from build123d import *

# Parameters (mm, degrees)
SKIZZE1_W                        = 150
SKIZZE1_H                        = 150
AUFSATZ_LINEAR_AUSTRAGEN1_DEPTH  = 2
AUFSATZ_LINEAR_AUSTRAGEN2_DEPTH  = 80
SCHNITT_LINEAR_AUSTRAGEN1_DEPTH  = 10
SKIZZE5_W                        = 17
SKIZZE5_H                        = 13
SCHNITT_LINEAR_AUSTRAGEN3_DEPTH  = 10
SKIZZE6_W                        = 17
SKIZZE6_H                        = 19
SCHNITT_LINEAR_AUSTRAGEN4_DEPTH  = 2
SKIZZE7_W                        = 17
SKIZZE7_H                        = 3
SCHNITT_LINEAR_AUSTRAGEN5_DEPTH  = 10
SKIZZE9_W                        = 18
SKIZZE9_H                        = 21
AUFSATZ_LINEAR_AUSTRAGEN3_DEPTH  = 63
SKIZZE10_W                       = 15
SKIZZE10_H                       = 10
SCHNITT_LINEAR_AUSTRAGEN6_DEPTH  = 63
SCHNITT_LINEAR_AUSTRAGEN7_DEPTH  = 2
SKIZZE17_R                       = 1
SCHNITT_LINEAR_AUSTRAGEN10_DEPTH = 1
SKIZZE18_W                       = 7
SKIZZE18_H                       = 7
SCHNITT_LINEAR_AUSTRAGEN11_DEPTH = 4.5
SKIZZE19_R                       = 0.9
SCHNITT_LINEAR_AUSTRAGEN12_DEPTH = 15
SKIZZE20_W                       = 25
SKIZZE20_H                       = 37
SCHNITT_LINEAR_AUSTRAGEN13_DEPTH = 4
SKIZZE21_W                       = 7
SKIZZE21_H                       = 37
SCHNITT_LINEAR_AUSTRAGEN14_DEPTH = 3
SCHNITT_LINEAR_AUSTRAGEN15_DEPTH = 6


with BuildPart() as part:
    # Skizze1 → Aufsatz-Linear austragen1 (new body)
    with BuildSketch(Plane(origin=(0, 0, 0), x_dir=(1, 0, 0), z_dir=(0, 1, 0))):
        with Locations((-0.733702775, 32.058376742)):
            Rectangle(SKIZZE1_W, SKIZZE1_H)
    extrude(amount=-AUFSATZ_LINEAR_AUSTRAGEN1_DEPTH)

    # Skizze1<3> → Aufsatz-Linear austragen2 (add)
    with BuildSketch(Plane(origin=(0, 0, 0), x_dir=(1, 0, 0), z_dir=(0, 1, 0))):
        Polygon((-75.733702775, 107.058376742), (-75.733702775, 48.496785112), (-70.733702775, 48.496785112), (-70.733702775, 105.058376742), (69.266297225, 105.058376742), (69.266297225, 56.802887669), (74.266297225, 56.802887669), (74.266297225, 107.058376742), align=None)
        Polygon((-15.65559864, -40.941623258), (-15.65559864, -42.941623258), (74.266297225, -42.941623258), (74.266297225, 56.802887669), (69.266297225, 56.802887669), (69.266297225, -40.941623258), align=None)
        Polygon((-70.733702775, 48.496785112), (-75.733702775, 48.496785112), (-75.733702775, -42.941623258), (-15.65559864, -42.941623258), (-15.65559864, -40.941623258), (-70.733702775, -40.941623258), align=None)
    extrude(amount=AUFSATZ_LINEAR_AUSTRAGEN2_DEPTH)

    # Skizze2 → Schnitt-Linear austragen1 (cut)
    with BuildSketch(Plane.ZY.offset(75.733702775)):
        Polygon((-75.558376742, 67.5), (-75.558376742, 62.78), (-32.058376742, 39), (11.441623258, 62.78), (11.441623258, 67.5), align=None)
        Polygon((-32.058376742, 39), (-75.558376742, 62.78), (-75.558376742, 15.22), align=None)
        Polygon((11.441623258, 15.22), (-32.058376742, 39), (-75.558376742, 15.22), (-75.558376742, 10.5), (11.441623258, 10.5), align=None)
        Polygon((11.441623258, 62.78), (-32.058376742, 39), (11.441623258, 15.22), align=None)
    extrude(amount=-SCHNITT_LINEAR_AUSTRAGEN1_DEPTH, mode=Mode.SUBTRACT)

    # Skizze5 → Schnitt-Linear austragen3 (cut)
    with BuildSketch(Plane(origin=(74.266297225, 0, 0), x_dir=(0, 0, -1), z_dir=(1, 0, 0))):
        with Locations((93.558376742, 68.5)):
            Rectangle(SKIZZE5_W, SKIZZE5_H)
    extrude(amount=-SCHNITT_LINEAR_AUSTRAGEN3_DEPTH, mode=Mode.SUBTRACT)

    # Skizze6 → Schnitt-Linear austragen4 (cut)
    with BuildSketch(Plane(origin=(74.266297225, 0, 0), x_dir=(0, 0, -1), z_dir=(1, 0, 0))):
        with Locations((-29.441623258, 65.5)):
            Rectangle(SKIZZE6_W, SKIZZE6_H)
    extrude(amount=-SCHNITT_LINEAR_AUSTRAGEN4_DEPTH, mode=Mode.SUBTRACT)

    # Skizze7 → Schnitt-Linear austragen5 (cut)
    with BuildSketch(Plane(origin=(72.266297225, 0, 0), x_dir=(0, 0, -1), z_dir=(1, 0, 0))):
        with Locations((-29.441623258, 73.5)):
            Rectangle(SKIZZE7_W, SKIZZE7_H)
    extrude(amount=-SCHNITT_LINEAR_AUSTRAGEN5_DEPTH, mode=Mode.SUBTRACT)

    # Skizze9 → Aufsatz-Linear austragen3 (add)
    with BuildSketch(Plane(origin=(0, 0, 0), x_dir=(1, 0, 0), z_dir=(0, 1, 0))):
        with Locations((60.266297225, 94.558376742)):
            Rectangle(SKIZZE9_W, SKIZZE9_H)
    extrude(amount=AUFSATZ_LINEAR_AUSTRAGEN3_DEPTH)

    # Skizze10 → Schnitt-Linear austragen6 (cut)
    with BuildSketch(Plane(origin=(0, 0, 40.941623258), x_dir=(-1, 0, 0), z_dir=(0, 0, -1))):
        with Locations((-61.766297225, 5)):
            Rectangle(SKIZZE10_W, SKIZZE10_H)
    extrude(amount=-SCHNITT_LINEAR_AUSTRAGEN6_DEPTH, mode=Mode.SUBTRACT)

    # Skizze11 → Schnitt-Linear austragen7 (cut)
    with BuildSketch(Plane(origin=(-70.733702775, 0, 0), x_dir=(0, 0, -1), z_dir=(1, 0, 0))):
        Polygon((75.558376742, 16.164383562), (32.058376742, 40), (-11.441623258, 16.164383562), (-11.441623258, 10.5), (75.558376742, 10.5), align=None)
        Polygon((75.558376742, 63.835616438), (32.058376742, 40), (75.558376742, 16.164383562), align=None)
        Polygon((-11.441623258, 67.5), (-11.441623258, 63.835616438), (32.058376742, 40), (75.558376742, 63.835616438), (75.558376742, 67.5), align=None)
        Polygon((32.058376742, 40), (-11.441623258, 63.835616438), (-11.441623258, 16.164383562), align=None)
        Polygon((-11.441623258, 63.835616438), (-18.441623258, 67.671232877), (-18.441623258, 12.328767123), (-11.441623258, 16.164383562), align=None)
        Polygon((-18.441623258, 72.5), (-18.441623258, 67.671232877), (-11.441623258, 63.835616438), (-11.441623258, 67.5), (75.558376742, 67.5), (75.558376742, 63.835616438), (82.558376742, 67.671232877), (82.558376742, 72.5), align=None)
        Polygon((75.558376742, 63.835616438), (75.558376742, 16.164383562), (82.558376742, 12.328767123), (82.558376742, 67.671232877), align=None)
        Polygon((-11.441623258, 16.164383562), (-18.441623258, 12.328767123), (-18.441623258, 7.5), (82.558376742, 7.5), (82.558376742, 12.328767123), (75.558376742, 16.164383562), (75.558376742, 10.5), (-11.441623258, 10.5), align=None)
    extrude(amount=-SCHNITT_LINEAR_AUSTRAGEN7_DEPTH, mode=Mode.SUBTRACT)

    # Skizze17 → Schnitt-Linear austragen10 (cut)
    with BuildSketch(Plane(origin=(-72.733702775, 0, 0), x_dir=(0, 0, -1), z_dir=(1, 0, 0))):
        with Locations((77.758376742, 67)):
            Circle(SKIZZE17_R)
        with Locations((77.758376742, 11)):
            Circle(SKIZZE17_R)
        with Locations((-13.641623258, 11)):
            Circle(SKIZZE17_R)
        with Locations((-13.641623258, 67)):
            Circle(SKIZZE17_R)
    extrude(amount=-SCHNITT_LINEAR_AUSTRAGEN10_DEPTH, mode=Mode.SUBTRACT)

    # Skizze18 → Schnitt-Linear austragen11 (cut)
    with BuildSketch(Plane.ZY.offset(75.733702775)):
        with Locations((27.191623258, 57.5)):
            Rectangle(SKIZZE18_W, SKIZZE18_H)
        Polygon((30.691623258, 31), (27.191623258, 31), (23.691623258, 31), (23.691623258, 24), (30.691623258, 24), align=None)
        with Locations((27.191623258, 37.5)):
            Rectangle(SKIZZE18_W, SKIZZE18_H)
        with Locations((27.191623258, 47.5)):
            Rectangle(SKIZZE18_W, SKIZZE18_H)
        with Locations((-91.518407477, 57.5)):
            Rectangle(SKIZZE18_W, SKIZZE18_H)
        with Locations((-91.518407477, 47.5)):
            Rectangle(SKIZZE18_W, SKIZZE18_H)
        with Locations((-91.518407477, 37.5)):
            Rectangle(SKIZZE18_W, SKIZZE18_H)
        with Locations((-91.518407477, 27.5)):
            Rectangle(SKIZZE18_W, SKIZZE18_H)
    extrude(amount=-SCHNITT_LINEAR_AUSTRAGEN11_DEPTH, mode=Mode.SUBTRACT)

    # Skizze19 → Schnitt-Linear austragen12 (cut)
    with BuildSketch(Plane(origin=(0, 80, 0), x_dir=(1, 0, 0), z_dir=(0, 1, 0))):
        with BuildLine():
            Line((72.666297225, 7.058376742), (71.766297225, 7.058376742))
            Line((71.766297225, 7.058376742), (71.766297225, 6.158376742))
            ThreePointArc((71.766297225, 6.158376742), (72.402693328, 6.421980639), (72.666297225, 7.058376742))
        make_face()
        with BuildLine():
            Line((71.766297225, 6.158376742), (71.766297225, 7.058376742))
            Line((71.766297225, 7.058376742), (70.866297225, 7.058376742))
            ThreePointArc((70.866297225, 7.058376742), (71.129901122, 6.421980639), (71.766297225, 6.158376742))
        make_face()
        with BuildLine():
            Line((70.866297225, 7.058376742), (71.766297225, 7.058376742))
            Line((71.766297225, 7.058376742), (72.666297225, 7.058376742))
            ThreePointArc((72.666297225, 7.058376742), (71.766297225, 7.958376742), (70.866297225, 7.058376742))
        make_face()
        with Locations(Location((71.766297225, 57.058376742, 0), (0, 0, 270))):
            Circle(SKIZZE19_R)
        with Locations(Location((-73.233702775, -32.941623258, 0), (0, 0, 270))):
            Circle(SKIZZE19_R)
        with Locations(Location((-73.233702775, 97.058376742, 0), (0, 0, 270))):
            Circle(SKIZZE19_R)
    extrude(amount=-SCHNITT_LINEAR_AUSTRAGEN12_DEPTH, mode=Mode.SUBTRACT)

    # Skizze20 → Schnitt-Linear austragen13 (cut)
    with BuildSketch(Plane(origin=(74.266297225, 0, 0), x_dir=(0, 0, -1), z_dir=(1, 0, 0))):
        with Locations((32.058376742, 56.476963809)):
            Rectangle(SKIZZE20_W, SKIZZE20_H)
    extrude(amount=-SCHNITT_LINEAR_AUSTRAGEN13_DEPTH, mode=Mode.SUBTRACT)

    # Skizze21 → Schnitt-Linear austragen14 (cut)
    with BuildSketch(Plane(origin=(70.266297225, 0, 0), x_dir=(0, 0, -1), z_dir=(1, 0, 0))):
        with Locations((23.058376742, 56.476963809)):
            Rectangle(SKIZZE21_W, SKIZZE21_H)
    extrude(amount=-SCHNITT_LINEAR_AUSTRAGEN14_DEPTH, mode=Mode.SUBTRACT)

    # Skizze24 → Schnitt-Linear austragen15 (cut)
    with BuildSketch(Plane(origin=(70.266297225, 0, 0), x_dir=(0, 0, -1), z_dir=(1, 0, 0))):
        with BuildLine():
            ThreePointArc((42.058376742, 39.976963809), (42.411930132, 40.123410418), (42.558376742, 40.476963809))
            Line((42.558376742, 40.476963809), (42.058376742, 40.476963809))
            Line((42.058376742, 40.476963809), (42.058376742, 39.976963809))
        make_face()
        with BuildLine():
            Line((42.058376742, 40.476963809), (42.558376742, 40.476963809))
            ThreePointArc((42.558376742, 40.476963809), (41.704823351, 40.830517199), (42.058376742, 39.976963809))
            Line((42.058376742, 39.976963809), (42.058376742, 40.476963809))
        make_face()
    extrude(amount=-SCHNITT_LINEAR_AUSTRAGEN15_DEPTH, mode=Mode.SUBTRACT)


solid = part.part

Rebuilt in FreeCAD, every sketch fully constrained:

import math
import FreeCAD as App
import Part
import Sketcher

doc = App.newDocument("Part")
body = doc.addObject("PartDesign::Body", "Body")

sketch1 = body.newObject("Sketcher::SketchObject", "Sketch")
sketch1.AttachmentSupport = (doc.getObject("XZ_Plane"), [""])
sketch1.MapMode = "FlatFace"
sketch1.addGeometry([
    Part.LineSegment(App.Vector(-75.733703, -107.058377, 0), App.Vector(-75.733703, 42.941623, 0)),
    Part.LineSegment(App.Vector(-75.733703, 42.941623, 0), App.Vector(74.266297, 42.941623, 0)),
    Part.LineSegment(App.Vector(74.266297, 42.941623, 0), App.Vector(74.266297, -107.058377, 0)),
    Part.LineSegment(App.Vector(74.266297, -107.058377, 0), App.Vector(-75.733703, -107.058377, 0)),
], False)
sketch1.addConstraint([
    Sketcher.Constraint("Coincident", 0, 2, 1, 1),
    Sketcher.Constraint("Coincident", 1, 2, 2, 1),
    Sketcher.Constraint("Coincident", 2, 2, 3, 1),
    Sketcher.Constraint("Coincident", 3, 2, 0, 1),
    Sketcher.Constraint("Vertical", 0),
    Sketcher.Constraint("Horizontal", 1),
    Sketcher.Constraint("Vertical", 2),
    Sketcher.Constraint("Horizontal", 3),
    Sketcher.Constraint("Equal", 3, 0),
    Sketcher.Constraint("DistanceX", 1, 1, 1, 2, 150.0),
    Sketcher.Constraint("DistanceX", 0, 2, -1, 1, 75.733703),
    Sketcher.Constraint("DistanceY", -1, 1, 0, 2, 42.941623),
])
pad1 = body.newObject("PartDesign::Pad", "Pad")
pad1.Profile = sketch1
pad1.Length = 2

sketch2 = body.newObject("Sketcher::SketchObject", "Sketch001")
sketch2.AttachmentSupport = (doc.getObject("XZ_Plane"), [""])
sketch2.MapMode = "FlatFace"
sketch2.addGeometry([
    Part.LineSegment(App.Vector(-75.733703, -107.058377, 0), App.Vector(-75.733703, 42.941623, 0)),
    Part.LineSegment(App.Vector(-75.733703, 42.941623, 0), App.Vector(74.266297, 42.941623, 0)),
    Part.LineSegment(App.Vector(74.266297, 42.941623, 0), App.Vector(74.266297, -107.058377, 0)),
    Part.LineSegment(App.Vector(74.266297, -107.058377, 0), App.Vector(-75.733703, -107.058377, 0)),
    Part.LineSegment(App.Vector(-70.733703, -105.058377, 0), App.Vector(69.266297, -105.058377, 0)),
    Part.LineSegment(App.Vector(69.266297, -105.058377, 0), App.Vector(69.266297, 40.941623, 0)),
    Part.LineSegment(App.Vector(69.266297, 40.941623, 0), App.Vector(-70.733703, 40.941623, 0)),
    Part.LineSegment(App.Vector(-70.733703, 40.941623, 0), App.Vector(-70.733703, -105.058377, 0)),
], False)
sketch2.addConstraint([
    Sketcher.Constraint("Coincident", 0, 2, 1, 1),
    Sketcher.Constraint("Coincident", 1, 2, 2, 1),
    Sketcher.Constraint("Coincident", 2, 2, 3, 1),
    Sketcher.Constraint("Coincident", 3, 2, 0, 1),
    Sketcher.Constraint("Coincident", 4, 2, 5, 1),
    Sketcher.Constraint("Coincident", 5, 2, 6, 1),
    Sketcher.Constraint("Coincident", 6, 2, 7, 1),
    Sketcher.Constraint("Coincident", 7, 2, 4, 1),
    Sketcher.Constraint("Vertical", 0),
    Sketcher.Constraint("Horizontal", 1),
    Sketcher.Constraint("Vertical", 2),
    Sketcher.Constraint("Horizontal", 3),
    Sketcher.Constraint("Horizontal", 4),
    Sketcher.Constraint("Vertical", 5),
    Sketcher.Constraint("Horizontal", 6),
    Sketcher.Constraint("Vertical", 7),
    Sketcher.Constraint("Equal", 3, 0),
    Sketcher.Constraint("DistanceX", 1, 1, 1, 2, 150.0),
    Sketcher.Constraint("DistanceX", 4, 1, 4, 2, 140.0),
    Sketcher.Constraint("DistanceY", 5, 1, 5, 2, 146.0),
    Sketcher.Constraint("DistanceX", 4, 2, 2, 2, 5.0),
    Sketcher.Constraint("DistanceY", 2, 2, 4, 2, 2.0),
    Sketcher.Constraint("DistanceX", 0, 2, -1, 1, 75.733703),
    Sketcher.Constraint("DistanceY", -1, 1, 0, 2, 42.941623),
])
pad2 = body.newObject("PartDesign::Pad", "Pad001")
pad2.Profile = sketch2
pad2.Length = 80
pad2.Reversed = True

sketch3 = body.newObject("Sketcher::SketchObject", "Sketch002")
sketch3.AttachmentSupport = (doc.getObject("YZ_Plane"), [""])
sketch3.MapMode = "FlatFace"
sketch3.AttachmentOffset = App.Placement(App.Vector(0, 0, -75.733703), App.Rotation())
sketch3.addGeometry([
    Part.LineSegment(App.Vector(67.5, -75.558377, 0), App.Vector(10.5, -75.558377, 0)),
    Part.LineSegment(App.Vector(10.5, -75.558377, 0), App.Vector(10.5, 11.441623, 0)),
    Part.LineSegment(App.Vector(10.5, 11.441623, 0), App.Vector(67.5, 11.441623, 0)),
    Part.LineSegment(App.Vector(67.5, 11.441623, 0), App.Vector(67.5, -75.558377, 0)),
], False)
sketch3.addConstraint([
    Sketcher.Constraint("Coincident", 0, 2, 1, 1),
    Sketcher.Constraint("Coincident", 1, 2, 2, 1),
    Sketcher.Constraint("Coincident", 2, 2, 3, 1),
    Sketcher.Constraint("Coincident", 3, 2, 0, 1),
    Sketcher.Constraint("Horizontal", 0),
    Sketcher.Constraint("Vertical", 1),
    Sketcher.Constraint("Horizontal", 2),
    Sketcher.Constraint("Vertical", 3),
    Sketcher.Constraint("DistanceX", 0, 2, 0, 1, 57.0),
    Sketcher.Constraint("DistanceY", 1, 1, 1, 2, 87.0),
    Sketcher.Constraint("DistanceX", -1, 1, 0, 2, 10.5),
    Sketcher.Constraint("DistanceY", 0, 2, -1, 1, 75.558377),
])
pocket1 = body.newObject("PartDesign::Pocket", "Pocket")
pocket1.Profile = sketch3
pocket1.Length = 10
pocket1.Reversed = True

sketch4 = body.newObject("Sketcher::SketchObject", "Sketch003")
sketch4.AttachmentSupport = (doc.getObject("YZ_Plane"), [""])
sketch4.MapMode = "FlatFace"
sketch4.AttachmentOffset = App.Placement(App.Vector(0, 0, 74.266297), App.Rotation())
sketch4.addGeometry([
    Part.LineSegment(App.Vector(75, -85.058377, 0), App.Vector(62, -85.058377, 0)),
    Part.LineSegment(App.Vector(62, -85.058377, 0), App.Vector(62, -102.058377, 0)),
    Part.LineSegment(App.Vector(62, -102.058377, 0), App.Vector(75, -102.058377, 0)),
    Part.LineSegment(App.Vector(75, -102.058377, 0), App.Vector(75, -85.058377, 0)),
], False)
sketch4.addConstraint([
    Sketcher.Constraint("Coincident", 0, 2, 1, 1),
    Sketcher.Constraint("Coincident", 1, 2, 2, 1),
    Sketcher.Constraint("Coincident", 2, 2, 3, 1),
    Sketcher.Constraint("Coincident", 3, 2, 0, 1),
    Sketcher.Constraint("Horizontal", 0),
    Sketcher.Constraint("Vertical", 1),
    Sketcher.Constraint("Horizontal", 2),
    Sketcher.Constraint("Vertical", 3),
    Sketcher.Constraint("DistanceX", 0, 2, 0, 1, 13.0),
    Sketcher.Constraint("DistanceY", 1, 2, 1, 1, 17.0),
    Sketcher.Constraint("DistanceX", -1, 1, 0, 2, 62.0),
    Sketcher.Constraint("DistanceY", 0, 2, -1, 1, 85.058377),
])
pocket2 = body.newObject("PartDesign::Pocket", "Pocket001")
pocket2.Profile = sketch4
pocket2.Length = 10

sketch5 = body.newObject("Sketcher::SketchObject", "Sketch004")
sketch5.AttachmentSupport = (doc.getObject("YZ_Plane"), [""])
sketch5.MapMode = "FlatFace"
sketch5.AttachmentOffset = App.Placement(App.Vector(0, 0, 74.266297), App.Rotation())
sketch5.addGeometry([
    Part.LineSegment(App.Vector(75, 37.941623, 0), App.Vector(56, 37.941623, 0)),
    Part.LineSegment(App.Vector(56, 37.941623, 0), App.Vector(56, 20.941623, 0)),
    Part.LineSegment(App.Vector(56, 20.941623, 0), App.Vector(75, 20.941623, 0)),
    Part.LineSegment(App.Vector(75, 20.941623, 0), App.Vector(75, 37.941623, 0)),
], False)
sketch5.addConstraint([
    Sketcher.Constraint("Coincident", 0, 2, 1, 1),
    Sketcher.Constraint("Coincident", 1, 2, 2, 1),
    Sketcher.Constraint("Coincident", 2, 2, 3, 1),
    Sketcher.Constraint("Coincident", 3, 2, 0, 1),
    Sketcher.Constraint("Horizontal", 0),
    Sketcher.Constraint("Vertical", 1),
    Sketcher.Constraint("Horizontal", 2),
    Sketcher.Constraint("Vertical", 3),
    Sketcher.Constraint("DistanceX", 0, 2, 0, 1, 19.0),
    Sketcher.Constraint("DistanceY", 1, 2, 1, 1, 17.0),
    Sketcher.Constraint("DistanceX", -1, 1, 0, 2, 56.0),
    Sketcher.Constraint("DistanceY", -1, 1, 0, 2, 37.941623),
])
pocket3 = body.newObject("PartDesign::Pocket", "Pocket002")
pocket3.Profile = sketch5
pocket3.Length = 2

sketch6 = body.newObject("Sketcher::SketchObject", "Sketch005")
sketch6.AttachmentSupport = (doc.getObject("YZ_Plane"), [""])
sketch6.MapMode = "FlatFace"
sketch6.AttachmentOffset = App.Placement(App.Vector(0, 0, 72.266297), App.Rotation())
sketch6.addGeometry([
    Part.LineSegment(App.Vector(75, 37.941623, 0), App.Vector(72, 37.941623, 0)),
    Part.LineSegment(App.Vector(72, 37.941623, 0), App.Vector(72, 20.941623, 0)),
    Part.LineSegment(App.Vector(72, 20.941623, 0), App.Vector(75, 20.941623, 0)),
    Part.LineSegment(App.Vector(75, 20.941623, 0), App.Vector(75, 37.941623, 0)),
], False)
sketch6.addConstraint([
    Sketcher.Constraint("Coincident", 0, 2, 1, 1),
    Sketcher.Constraint("Coincident", 1, 2, 2, 1),
    Sketcher.Constraint("Coincident", 2, 2, 3, 1),
    Sketcher.Constraint("Coincident", 3, 2, 0, 1),
    Sketcher.Constraint("Horizontal", 0),
    Sketcher.Constraint("Vertical", 1),
    Sketcher.Constraint("Horizontal", 2),
    Sketcher.Constraint("Vertical", 3),
    Sketcher.Constraint("DistanceX", 0, 2, 0, 1, 3.0),
    Sketcher.Constraint("DistanceY", 1, 2, 1, 1, 17.0),
    Sketcher.Constraint("DistanceX", -1, 1, 0, 2, 72.0),
    Sketcher.Constraint("DistanceY", -1, 1, 0, 2, 37.941623),
])
pocket4 = body.newObject("PartDesign::Pocket", "Pocket003")
pocket4.Profile = sketch6
pocket4.Length = 10

sketch7 = body.newObject("Sketcher::SketchObject", "Sketch006")
sketch7.AttachmentSupport = (doc.getObject("XZ_Plane"), [""])
sketch7.MapMode = "FlatFace"
sketch7.addGeometry([
    Part.LineSegment(App.Vector(51.266297, -105.058377, 0), App.Vector(51.266297, -84.058377, 0)),
    Part.LineSegment(App.Vector(51.266297, -84.058377, 0), App.Vector(69.266297, -84.058377, 0)),
    Part.LineSegment(App.Vector(69.266297, -84.058377, 0), App.Vector(69.266297, -105.058377, 0)),
    Part.LineSegment(App.Vector(69.266297, -105.058377, 0), App.Vector(51.266297, -105.058377, 0)),
], False)
sketch7.addConstraint([
    Sketcher.Constraint("Coincident", 0, 2, 1, 1),
    Sketcher.Constraint("Coincident", 1, 2, 2, 1),
    Sketcher.Constraint("Coincident", 2, 2, 3, 1),
    Sketcher.Constraint("Coincident", 3, 2, 0, 1),
    Sketcher.Constraint("Vertical", 0),
    Sketcher.Constraint("Horizontal", 1),
    Sketcher.Constraint("Vertical", 2),
    Sketcher.Constraint("Horizontal", 3),
    Sketcher.Constraint("DistanceX", 1, 1, 1, 2, 18.0),
    Sketcher.Constraint("DistanceY", 0, 1, 0, 2, 21.0),
    Sketcher.Constraint("DistanceX", -1, 1, 0, 2, 51.266297),
    Sketcher.Constraint("DistanceY", 0, 2, -1, 1, 84.058377),
])
pad3 = body.newObject("PartDesign::Pad", "Pad002")
pad3.Profile = sketch7
pad3.Length = 63
pad3.Reversed = True

sketch8 = body.newObject("Sketcher::SketchObject", "Sketch007")
sketch8.AttachmentSupport = (doc.getObject("XY_Plane"), [""])
sketch8.MapMode = "FlatFace"
sketch8.AttachmentOffset = App.Placement(App.Vector(0, 0, 40.941623), App.Rotation())
sketch8.addGeometry([
    Part.LineSegment(App.Vector(69.266297, 10, 0), App.Vector(69.266297, 0, 0)),
    Part.LineSegment(App.Vector(69.266297, 0, 0), App.Vector(54.266297, 0, 0)),
    Part.LineSegment(App.Vector(54.266297, 0, 0), App.Vector(54.266297, 10, 0)),
    Part.LineSegment(App.Vector(54.266297, 10, 0), App.Vector(69.266297, 10, 0)),
], False)
sketch8.addConstraint([
    Sketcher.Constraint("Coincident", 0, 2, 1, 1),
    Sketcher.Constraint("Coincident", 1, 2, 2, 1),
    Sketcher.Constraint("Coincident", 2, 2, 3, 1),
    Sketcher.Constraint("Coincident", 3, 2, 0, 1),
    Sketcher.Constraint("Vertical", 0),
    Sketcher.Constraint("Horizontal", 1),
    Sketcher.Constraint("Vertical", 2),
    Sketcher.Constraint("Horizontal", 3),
    Sketcher.Constraint("PointOnObject", 0, 2, -1),
    Sketcher.Constraint("DistanceX", 1, 2, 1, 1, 15.0),
    Sketcher.Constraint("DistanceY", 0, 2, 0, 1, 10.0),
    Sketcher.Constraint("DistanceX", -1, 1, 0, 2, 69.266297),
])
pocket5 = body.newObject("PartDesign::Pocket", "Pocket004")
pocket5.Profile = sketch8
pocket5.Length = 63
pocket5.Reversed = True

sketch9 = body.newObject("Sketcher::SketchObject", "Sketch008")
sketch9.AttachmentSupport = (doc.getObject("YZ_Plane"), [""])
sketch9.MapMode = "FlatFace"
sketch9.AttachmentOffset = App.Placement(App.Vector(0, 0, -70.733703), App.Rotation())
sketch9.addGeometry([
    Part.LineSegment(App.Vector(72.5, -82.558377, 0), App.Vector(72.5, 18.441623, 0)),
    Part.LineSegment(App.Vector(72.5, 18.441623, 0), App.Vector(7.5, 18.441623, 0)),
    Part.LineSegment(App.Vector(7.5, 18.441623, 0), App.Vector(7.5, -82.558377, 0)),
    Part.LineSegment(App.Vector(7.5, -82.558377, 0), App.Vector(72.5, -82.558377, 0)),
], False)
sketch9.addConstraint([
    Sketcher.Constraint("Coincident", 0, 2, 1, 1),
    Sketcher.Constraint("Coincident", 1, 2, 2, 1),
    Sketcher.Constraint("Coincident", 2, 2, 3, 1),
    Sketcher.Constraint("Coincident", 3, 2, 0, 1),
    Sketcher.Constraint("Vertical", 0),
    Sketcher.Constraint("Horizontal", 1),
    Sketcher.Constraint("Vertical", 2),
    Sketcher.Constraint("Horizontal", 3),
    Sketcher.Constraint("DistanceX", 1, 2, 1, 1, 65.0),
    Sketcher.Constraint("DistanceY", 0, 1, 0, 2, 101.0),
    Sketcher.Constraint("DistanceX", -1, 1, 0, 2, 72.5),
    Sketcher.Constraint("DistanceY", -1, 1, 0, 2, 18.441623),
])
pocket6 = body.newObject("PartDesign::Pocket", "Pocket005")
pocket6.Profile = sketch9
pocket6.Length = 2

sketch10 = body.newObject("Sketcher::SketchObject", "Sketch009")
sketch10.AttachmentSupport = (doc.getObject("YZ_Plane"), [""])
sketch10.MapMode = "FlatFace"
sketch10.AttachmentOffset = App.Placement(App.Vector(0, 0, -72.733703), App.Rotation())
sketch10.addGeometry([
    Part.Circle(App.Vector(67, -77.758377, 0), App.Vector(0, 0, 1), 1),
    Part.Circle(App.Vector(11, -77.758377, 0), App.Vector(0, 0, 1), 1),
    Part.Circle(App.Vector(11, 13.641623, 0), App.Vector(0, 0, 1), 1),
    Part.Circle(App.Vector(67, 13.641623, 0), App.Vector(0, 0, 1), 1),
], False)
sketch10.addConstraint([
    Sketcher.Constraint("Equal", 0, 1),
    Sketcher.Constraint("Equal", 1, 2),
    Sketcher.Constraint("Equal", 2, 3),
    Sketcher.Constraint("Horizontal", 0, 3, 1, 3),
    Sketcher.Constraint("Horizontal", 2, 3, 3, 3),
    Sketcher.Constraint("Vertical", 1, 3, 2, 3),
    Sketcher.Constraint("Vertical", 0, 3, 3, 3),
    Sketcher.Constraint("Diameter", 0, 2.0),
    Sketcher.Constraint("DistanceX", -1, 1, 0, 3, 67.0),
    Sketcher.Constraint("DistanceX", -1, 1, 1, 3, 11.0),
    Sketcher.Constraint("DistanceY", 1, 3, 2, 3, 91.4),
    Sketcher.Constraint("DistanceY", 0, 3, -1, 1, 77.758377),
])
pocket7 = body.newObject("PartDesign::Pocket", "Pocket006")
pocket7.Profile = sketch10
pocket7.Length = 1

sketch11 = body.newObject("Sketcher::SketchObject", "Sketch010")
sketch11.AttachmentSupport = (doc.getObject("YZ_Plane"), [""])
sketch11.MapMode = "FlatFace"
sketch11.AttachmentOffset = App.Placement(App.Vector(0, 0, -75.733703), App.Rotation())
sketch11.addGeometry([
    Part.LineSegment(App.Vector(61, 23.691623, 0), App.Vector(54, 23.691623, 0)),
    Part.LineSegment(App.Vector(54, 23.691623, 0), App.Vector(54, 30.691623, 0)),
    Part.LineSegment(App.Vector(54, 30.691623, 0), App.Vector(61, 30.691623, 0)),
    Part.LineSegment(App.Vector(61, 30.691623, 0), App.Vector(61, 23.691623, 0)),
    Part.LineSegment(App.Vector(31, 30.691623, 0), App.Vector(31, 23.691623, 0)),
    Part.LineSegment(App.Vector(31, 23.691623, 0), App.Vector(24, 23.691623, 0)),
    Part.LineSegment(App.Vector(24, 23.691623, 0), App.Vector(24, 30.691623, 0)),
    Part.LineSegment(App.Vector(24, 30.691623, 0), App.Vector(31, 30.691623, 0)),
    Part.LineSegment(App.Vector(41, 23.691623, 0), App.Vector(34, 23.691623, 0)),
    Part.LineSegment(App.Vector(34, 23.691623, 0), App.Vector(34, 30.691623, 0)),
    Part.LineSegment(App.Vector(34, 30.691623, 0), App.Vector(41, 30.691623, 0)),
    Part.LineSegment(App.Vector(41, 30.691623, 0), App.Vector(41, 23.691623, 0)),
    Part.LineSegment(App.Vector(51, 23.691623, 0), App.Vector(44, 23.691623, 0)),
    Part.LineSegment(App.Vector(44, 23.691623, 0), App.Vector(44, 30.691623, 0)),
    Part.LineSegment(App.Vector(44, 30.691623, 0), App.Vector(51, 30.691623, 0)),
    Part.LineSegment(App.Vector(51, 30.691623, 0), App.Vector(51, 23.691623, 0)),
    Part.LineSegment(App.Vector(61, -95.018407, 0), App.Vector(54, -95.018407, 0)),
    Part.LineSegment(App.Vector(54, -95.018407, 0), App.Vector(54, -88.018407, 0)),
    Part.LineSegment(App.Vector(54, -88.018407, 0), App.Vector(61, -88.018407, 0)),
    Part.LineSegment(App.Vector(61, -88.018407, 0), App.Vector(61, -95.018407, 0)),
    Part.LineSegment(App.Vector(51, -95.018407, 0), App.Vector(44, -95.018407, 0)),
    Part.LineSegment(App.Vector(44, -95.018407, 0), App.Vector(44, -88.018407, 0)),
    Part.LineSegment(App.Vector(44, -88.018407, 0), App.Vector(51, -88.018407, 0)),
    Part.LineSegment(App.Vector(51, -88.018407, 0), App.Vector(51, -95.018407, 0)),
    Part.LineSegment(App.Vector(41, -95.018407, 0), App.Vector(34, -95.018407, 0)),
    Part.LineSegment(App.Vector(34, -95.018407, 0), App.Vector(34, -88.018407, 0)),
    Part.LineSegment(App.Vector(34, -88.018407, 0), App.Vector(41, -88.018407, 0)),
    Part.LineSegment(App.Vector(41, -88.018407, 0), App.Vector(41, -95.018407, 0)),
    Part.LineSegment(App.Vector(31, -95.018407, 0), App.Vector(24, -95.018407, 0)),
    Part.LineSegment(App.Vector(24, -95.018407, 0), App.Vector(24, -88.018407, 0)),
    Part.LineSegment(App.Vector(24, -88.018407, 0), App.Vector(31, -88.018407, 0)),
    Part.LineSegment(App.Vector(31, -88.018407, 0), App.Vector(31, -95.018407, 0)),
], False)
sketch11.addConstraint([
    Sketcher.Constraint("Coincident", 0, 2, 1, 1),
    Sketcher.Constraint("Coincident", 1, 2, 2, 1),
    Sketcher.Constraint("Coincident", 2, 2, 3, 1),
    Sketcher.Constraint("Coincident", 3, 2, 0, 1),
    Sketcher.Constraint("Coincident", 4, 2, 5, 1),
    Sketcher.Constraint("Coincident", 5, 2, 6, 1),
    Sketcher.Constraint("Coincident", 6, 2, 7, 1),
    Sketcher.Constraint("Coincident", 7, 2, 4, 1),
    Sketcher.Constraint("Coincident", 8, 2, 9, 1),
    Sketcher.Constraint("Coincident", 9, 2, 10, 1),
    Sketcher.Constraint("Coincident", 10, 2, 11, 1),
    Sketcher.Constraint("Coincident", 11, 2, 8, 1),
    Sketcher.Constraint("Coincident", 12, 2, 13, 1),
    Sketcher.Constraint("Coincident", 13, 2, 14, 1),
    Sketcher.Constraint("Coincident", 14, 2, 15, 1),
    Sketcher.Constraint("Coincident", 15, 2, 12, 1),
    Sketcher.Constraint("Coincident", 16, 2, 17, 1),
    Sketcher.Constraint("Coincident", 17, 2, 18, 1),
    Sketcher.Constraint("Coincident", 18, 2, 19, 1),
    Sketcher.Constraint("Coincident", 19, 2, 16, 1),
    Sketcher.Constraint("Coincident", 20, 2, 21, 1),
    Sketcher.Constraint("Coincident", 21, 2, 22, 1),
    Sketcher.Constraint("Coincident", 22, 2, 23, 1),
    Sketcher.Constraint("Coincident", 23, 2, 20, 1),
    Sketcher.Constraint("Coincident", 24, 2, 25, 1),
    Sketcher.Constraint("Coincident", 25, 2, 26, 1),
    Sketcher.Constraint("Coincident", 26, 2, 27, 1),
    Sketcher.Constraint("Coincident", 27, 2, 24, 1),
    Sketcher.Constraint("Coincident", 28, 2, 29, 1),
    Sketcher.Constraint("Coincident", 29, 2, 30, 1),
    Sketcher.Constraint("Coincident", 30, 2, 31, 1),
    Sketcher.Constraint("Coincident", 31, 2, 28, 1),
    Sketcher.Constraint("Horizontal", 0),
    Sketcher.Constraint("Vertical", 1),
    Sketcher.Constraint("Horizontal", 2),
    Sketcher.Constraint("Vertical", 3),
    Sketcher.Constraint("Vertical", 4),
    Sketcher.Constraint("Horizontal", 5),
    Sketcher.Constraint("Vertical", 6),
    Sketcher.Constraint("Horizontal", 7),
    Sketcher.Constraint("Horizontal", 8),
    Sketcher.Constraint("Vertical", 9),
    Sketcher.Constraint("Horizontal", 10),
    Sketcher.Constraint("Vertical", 11),
    Sketcher.Constraint("Horizontal", 12),
    Sketcher.Constraint("Vertical", 13),
    Sketcher.Constraint("Horizontal", 14),
    Sketcher.Constraint("Vertical", 15),
    Sketcher.Constraint("Horizontal", 16),
    Sketcher.Constraint("Vertical", 17),
    Sketcher.Constraint("Horizontal", 18),
    Sketcher.Constraint("Vertical", 19),
    Sketcher.Constraint("Horizontal", 20),
    Sketcher.Constraint("Vertical", 21),
    Sketcher.Constraint("Horizontal", 22),
    Sketcher.Constraint("Vertical", 23),
    Sketcher.Constraint("Horizontal", 24),
    Sketcher.Constraint("Vertical", 25),
    Sketcher.Constraint("Horizontal", 26),
    Sketcher.Constraint("Vertical", 27),
    Sketcher.Constraint("Horizontal", 28),
    Sketcher.Constraint("Vertical", 29),
    Sketcher.Constraint("Horizontal", 30),
    Sketcher.Constraint("Vertical", 31),
    Sketcher.Constraint("Horizontal", 3, 2, 4, 2),
    Sketcher.Constraint("Horizontal", 2, 2, 6, 2),
    Sketcher.Constraint("Horizontal", 5, 2, 8, 2),
    Sketcher.Constraint("Horizontal", 7, 2, 9, 2),
    Sketcher.Constraint("Horizontal", 11, 2, 12, 2),
    Sketcher.Constraint("Horizontal", 10, 2, 13, 2),
    Sketcher.Constraint("Horizontal", 19, 2, 20, 2),
    Sketcher.Constraint("Horizontal", 18, 2, 21, 2),
    Sketcher.Constraint("Horizontal", 23, 2, 24, 2),
    Sketcher.Constraint("Horizontal", 22, 2, 25, 2),
    Sketcher.Constraint("Horizontal", 27, 2, 28, 2),
    Sketcher.Constraint("Horizontal", 26, 2, 29, 2),
    Sketcher.Constraint("Vertical", 1, 2, 16, 2),
    Sketcher.Constraint("Vertical", 3, 2, 18, 2),
    Sketcher.Constraint("Vertical", 13, 2, 20, 2),
    Sketcher.Constraint("Vertical", 15, 2, 22, 2),
    Sketcher.Constraint("Vertical", 9, 2, 24, 2),
    Sketcher.Constraint("Vertical", 11, 2, 26, 2),
    Sketcher.Constraint("Vertical", 6, 2, 28, 2),
    Sketcher.Constraint("Vertical", 7, 2, 30, 2),
    Sketcher.Constraint("Equal", 2, 5),
    Sketcher.Constraint("Equal", 7, 8),
    Sketcher.Constraint("Equal", 10, 12),
    Sketcher.Constraint("Equal", 30, 1),
    Sketcher.Constraint("Equal", 15, 17),
    Sketcher.Constraint("DistanceX", 0, 2, 0, 1, 7.0),
    Sketcher.Constraint("DistanceX", -1, 1, 0, 2, 54.0),
    Sketcher.Constraint("DistanceX", -1, 1, 4, 2, 31.0),
    Sketcher.Constraint("DistanceX", -1, 1, 8, 2, 34.0),
    Sketcher.Constraint("DistanceX", -1, 1, 12, 2, 44.0),
    Sketcher.Constraint("DistanceY", 16, 2, 0, 2, 118.710031),
    Sketcher.Constraint("DistanceY", -1, 1, 0, 2, 23.691623),
])
pocket8 = body.newObject("PartDesign::Pocket", "Pocket007")
pocket8.Profile = sketch11
pocket8.Length = 4.5
pocket8.Reversed = True

sketch12 = body.newObject("Sketcher::SketchObject", "Sketch011")
sketch12.AttachmentSupport = (doc.getObject("XZ_Plane"), [""])
sketch12.MapMode = "FlatFace"
sketch12.AttachmentOffset = App.Placement(App.Vector(0, 0, -80), App.Rotation())
sketch12.addGeometry([
    Part.ArcOfCircle(Part.Circle(App.Vector(71.766297, -7.058377, 0), App.Vector(0, 0, 1), 0.9), math.radians(90), math.radians(180)),
    Part.ArcOfCircle(Part.Circle(App.Vector(71.766297, -7.058377, 0), App.Vector(0, 0, 1), 0.9), math.radians(0), math.radians(90)),
    Part.ArcOfCircle(Part.Circle(App.Vector(71.766297, -7.058377, 0), App.Vector(0, 0, 1), 0.9), math.radians(180), math.radians(360)),
    Part.Circle(App.Vector(71.766297, -57.058377, 0), App.Vector(0, 0, 1), 0.9),
    Part.Circle(App.Vector(-73.233703, 32.941623, 0), App.Vector(0, 0, 1), 0.9),
    Part.Circle(App.Vector(-73.233703, -97.058377, 0), App.Vector(0, 0, 1), 0.9),
], False)
sketch12.addConstraint([
    Sketcher.Constraint("Tangent", 0, 1, 1, 2),
    Sketcher.Constraint("Tangent", 1, 1, 2, 2),
    Sketcher.Constraint("Tangent", 2, 1, 0, 2),
    Sketcher.Constraint("Equal", 2, 3),
    Sketcher.Constraint("Equal", 3, 4),
    Sketcher.Constraint("Equal", 4, 5),
    Sketcher.Constraint("Horizontal", 2, 3, 1, 1),
    Sketcher.Constraint("Horizontal", 1, 1, 2, 1),
    Sketcher.Constraint("Vertical", 2, 3, 3, 3),
    Sketcher.Constraint("Vertical", 4, 3, 5, 3),
    Sketcher.Constraint("Vertical", 3, 3, 0, 1),
    Sketcher.Constraint("Diameter", 3, 1.8),
    Sketcher.Constraint("DistanceY", 3, 3, 0, 3, 50.0),
    Sketcher.Constraint("DistanceX", 4, 3, 0, 3, 145.0),
    Sketcher.Constraint("DistanceY", 0, 3, 4, 3, 40.0),
    Sketcher.Constraint("DistanceY", 5, 3, 4, 3, 130.0),
    Sketcher.Constraint("DistanceX", -1, 1, 0, 3, 71.766297),
    Sketcher.Constraint("DistanceY", 0, 3, -1, 1, 7.058377),
])
pocket9 = body.newObject("PartDesign::Pocket", "Pocket008")
pocket9.Profile = sketch12
pocket9.Length = 15
pocket9.Reversed = True

sketch13 = body.newObject("Sketcher::SketchObject", "Sketch012")
sketch13.AttachmentSupport = (doc.getObject("YZ_Plane"), [""])
sketch13.MapMode = "FlatFace"
sketch13.AttachmentOffset = App.Placement(App.Vector(0, 0, 74.266297), App.Rotation())
sketch13.addGeometry([
    Part.LineSegment(App.Vector(74.976964, -19.558377, 0), App.Vector(37.976964, -19.558377, 0)),
    Part.LineSegment(App.Vector(37.976964, -19.558377, 0), App.Vector(37.976964, -44.558377, 0)),
    Part.LineSegment(App.Vector(37.976964, -44.558377, 0), App.Vector(74.976964, -44.558377, 0)),
    Part.LineSegment(App.Vector(74.976964, -44.558377, 0), App.Vector(74.976964, -19.558377, 0)),
], False)
sketch13.addConstraint([
    Sketcher.Constraint("Coincident", 0, 2, 1, 1),
    Sketcher.Constraint("Coincident", 1, 2, 2, 1),
    Sketcher.Constraint("Coincident", 2, 2, 3, 1),
    Sketcher.Constraint("Coincident", 3, 2, 0, 1),
    Sketcher.Constraint("Horizontal", 0),
    Sketcher.Constraint("Vertical", 1),
    Sketcher.Constraint("Horizontal", 2),
    Sketcher.Constraint("Vertical", 3),
    Sketcher.Constraint("DistanceX", 0, 2, 0, 1, 37.0),
    Sketcher.Constraint("DistanceY", 1, 2, 1, 1, 25.0),
    Sketcher.Constraint("DistanceX", -1, 1, 0, 2, 37.976964),
    Sketcher.Constraint("DistanceY", 0, 2, -1, 1, 19.558377),
])
pocket10 = body.newObject("PartDesign::Pocket", "Pocket009")
pocket10.Profile = sketch13
pocket10.Length = 4

sketch14 = body.newObject("Sketcher::SketchObject", "Sketch013")
sketch14.AttachmentSupport = (doc.getObject("YZ_Plane"), [""])
sketch14.MapMode = "FlatFace"
sketch14.AttachmentOffset = App.Placement(App.Vector(0, 0, 70.266297), App.Rotation())
sketch14.addGeometry([
    Part.LineSegment(App.Vector(74.976964, -19.558377, 0), App.Vector(37.976964, -19.558377, 0)),
    Part.LineSegment(App.Vector(37.976964, -19.558377, 0), App.Vector(37.976964, -26.558377, 0)),
    Part.LineSegment(App.Vector(37.976964, -26.558377, 0), App.Vector(74.976964, -26.558377, 0)),
    Part.LineSegment(App.Vector(74.976964, -26.558377, 0), App.Vector(74.976964, -19.558377, 0)),
], False)
sketch14.addConstraint([
    Sketcher.Constraint("Coincident", 0, 2, 1, 1),
    Sketcher.Constraint("Coincident", 1, 2, 2, 1),
    Sketcher.Constraint("Coincident", 2, 2, 3, 1),
    Sketcher.Constraint("Coincident", 3, 2, 0, 1),
    Sketcher.Constraint("Horizontal", 0),
    Sketcher.Constraint("Vertical", 1),
    Sketcher.Constraint("Horizontal", 2),
    Sketcher.Constraint("Vertical", 3),
    Sketcher.Constraint("DistanceX", 0, 2, 0, 1, 37.0),
    Sketcher.Constraint("DistanceY", 1, 2, 1, 1, 7.0),
    Sketcher.Constraint("DistanceX", -1, 1, 0, 2, 37.976964),
    Sketcher.Constraint("DistanceY", 0, 2, -1, 1, 19.558377),
])
pocket11 = body.newObject("PartDesign::Pocket", "Pocket010")
pocket11.Profile = sketch14
pocket11.Length = 3

sketch15 = body.newObject("Sketcher::SketchObject", "Sketch014")
sketch15.AttachmentSupport = (doc.getObject("YZ_Plane"), [""])
sketch15.MapMode = "FlatFace"
sketch15.AttachmentOffset = App.Placement(App.Vector(0, 0, 70.266297), App.Rotation())
sketch15.addGeometry([
    Part.ArcOfCircle(Part.Circle(App.Vector(40.476964, -42.058377, 0), App.Vector(0, 0, 1), 0.5), math.radians(180), math.radians(270)),
    Part.ArcOfCircle(Part.Circle(App.Vector(40.476964, -42.058377, 0), App.Vector(0, 0, 1), 0.5), math.radians(-90), math.radians(180)),
], False)
sketch15.addConstraint([
    Sketcher.Constraint("Tangent", 0, 1, 1, 2),
    Sketcher.Constraint("Coincident", 1, 1, 0, 2),
    Sketcher.Constraint("Horizontal", 1, 3, 0, 1),
    Sketcher.Constraint("Vertical", 0, 3, 1, 1),
    Sketcher.Constraint("Radius", 0, 0.5),
    Sketcher.Constraint("DistanceX", -1, 1, 0, 3, 40.476964),
    Sketcher.Constraint("DistanceY", 0, 3, -1, 1, 42.058377),
])
pocket12 = body.newObject("PartDesign::Pocket", "Pocket011")
pocket12.Profile = sketch15
pocket12.Length = 6

doc.recompute()
